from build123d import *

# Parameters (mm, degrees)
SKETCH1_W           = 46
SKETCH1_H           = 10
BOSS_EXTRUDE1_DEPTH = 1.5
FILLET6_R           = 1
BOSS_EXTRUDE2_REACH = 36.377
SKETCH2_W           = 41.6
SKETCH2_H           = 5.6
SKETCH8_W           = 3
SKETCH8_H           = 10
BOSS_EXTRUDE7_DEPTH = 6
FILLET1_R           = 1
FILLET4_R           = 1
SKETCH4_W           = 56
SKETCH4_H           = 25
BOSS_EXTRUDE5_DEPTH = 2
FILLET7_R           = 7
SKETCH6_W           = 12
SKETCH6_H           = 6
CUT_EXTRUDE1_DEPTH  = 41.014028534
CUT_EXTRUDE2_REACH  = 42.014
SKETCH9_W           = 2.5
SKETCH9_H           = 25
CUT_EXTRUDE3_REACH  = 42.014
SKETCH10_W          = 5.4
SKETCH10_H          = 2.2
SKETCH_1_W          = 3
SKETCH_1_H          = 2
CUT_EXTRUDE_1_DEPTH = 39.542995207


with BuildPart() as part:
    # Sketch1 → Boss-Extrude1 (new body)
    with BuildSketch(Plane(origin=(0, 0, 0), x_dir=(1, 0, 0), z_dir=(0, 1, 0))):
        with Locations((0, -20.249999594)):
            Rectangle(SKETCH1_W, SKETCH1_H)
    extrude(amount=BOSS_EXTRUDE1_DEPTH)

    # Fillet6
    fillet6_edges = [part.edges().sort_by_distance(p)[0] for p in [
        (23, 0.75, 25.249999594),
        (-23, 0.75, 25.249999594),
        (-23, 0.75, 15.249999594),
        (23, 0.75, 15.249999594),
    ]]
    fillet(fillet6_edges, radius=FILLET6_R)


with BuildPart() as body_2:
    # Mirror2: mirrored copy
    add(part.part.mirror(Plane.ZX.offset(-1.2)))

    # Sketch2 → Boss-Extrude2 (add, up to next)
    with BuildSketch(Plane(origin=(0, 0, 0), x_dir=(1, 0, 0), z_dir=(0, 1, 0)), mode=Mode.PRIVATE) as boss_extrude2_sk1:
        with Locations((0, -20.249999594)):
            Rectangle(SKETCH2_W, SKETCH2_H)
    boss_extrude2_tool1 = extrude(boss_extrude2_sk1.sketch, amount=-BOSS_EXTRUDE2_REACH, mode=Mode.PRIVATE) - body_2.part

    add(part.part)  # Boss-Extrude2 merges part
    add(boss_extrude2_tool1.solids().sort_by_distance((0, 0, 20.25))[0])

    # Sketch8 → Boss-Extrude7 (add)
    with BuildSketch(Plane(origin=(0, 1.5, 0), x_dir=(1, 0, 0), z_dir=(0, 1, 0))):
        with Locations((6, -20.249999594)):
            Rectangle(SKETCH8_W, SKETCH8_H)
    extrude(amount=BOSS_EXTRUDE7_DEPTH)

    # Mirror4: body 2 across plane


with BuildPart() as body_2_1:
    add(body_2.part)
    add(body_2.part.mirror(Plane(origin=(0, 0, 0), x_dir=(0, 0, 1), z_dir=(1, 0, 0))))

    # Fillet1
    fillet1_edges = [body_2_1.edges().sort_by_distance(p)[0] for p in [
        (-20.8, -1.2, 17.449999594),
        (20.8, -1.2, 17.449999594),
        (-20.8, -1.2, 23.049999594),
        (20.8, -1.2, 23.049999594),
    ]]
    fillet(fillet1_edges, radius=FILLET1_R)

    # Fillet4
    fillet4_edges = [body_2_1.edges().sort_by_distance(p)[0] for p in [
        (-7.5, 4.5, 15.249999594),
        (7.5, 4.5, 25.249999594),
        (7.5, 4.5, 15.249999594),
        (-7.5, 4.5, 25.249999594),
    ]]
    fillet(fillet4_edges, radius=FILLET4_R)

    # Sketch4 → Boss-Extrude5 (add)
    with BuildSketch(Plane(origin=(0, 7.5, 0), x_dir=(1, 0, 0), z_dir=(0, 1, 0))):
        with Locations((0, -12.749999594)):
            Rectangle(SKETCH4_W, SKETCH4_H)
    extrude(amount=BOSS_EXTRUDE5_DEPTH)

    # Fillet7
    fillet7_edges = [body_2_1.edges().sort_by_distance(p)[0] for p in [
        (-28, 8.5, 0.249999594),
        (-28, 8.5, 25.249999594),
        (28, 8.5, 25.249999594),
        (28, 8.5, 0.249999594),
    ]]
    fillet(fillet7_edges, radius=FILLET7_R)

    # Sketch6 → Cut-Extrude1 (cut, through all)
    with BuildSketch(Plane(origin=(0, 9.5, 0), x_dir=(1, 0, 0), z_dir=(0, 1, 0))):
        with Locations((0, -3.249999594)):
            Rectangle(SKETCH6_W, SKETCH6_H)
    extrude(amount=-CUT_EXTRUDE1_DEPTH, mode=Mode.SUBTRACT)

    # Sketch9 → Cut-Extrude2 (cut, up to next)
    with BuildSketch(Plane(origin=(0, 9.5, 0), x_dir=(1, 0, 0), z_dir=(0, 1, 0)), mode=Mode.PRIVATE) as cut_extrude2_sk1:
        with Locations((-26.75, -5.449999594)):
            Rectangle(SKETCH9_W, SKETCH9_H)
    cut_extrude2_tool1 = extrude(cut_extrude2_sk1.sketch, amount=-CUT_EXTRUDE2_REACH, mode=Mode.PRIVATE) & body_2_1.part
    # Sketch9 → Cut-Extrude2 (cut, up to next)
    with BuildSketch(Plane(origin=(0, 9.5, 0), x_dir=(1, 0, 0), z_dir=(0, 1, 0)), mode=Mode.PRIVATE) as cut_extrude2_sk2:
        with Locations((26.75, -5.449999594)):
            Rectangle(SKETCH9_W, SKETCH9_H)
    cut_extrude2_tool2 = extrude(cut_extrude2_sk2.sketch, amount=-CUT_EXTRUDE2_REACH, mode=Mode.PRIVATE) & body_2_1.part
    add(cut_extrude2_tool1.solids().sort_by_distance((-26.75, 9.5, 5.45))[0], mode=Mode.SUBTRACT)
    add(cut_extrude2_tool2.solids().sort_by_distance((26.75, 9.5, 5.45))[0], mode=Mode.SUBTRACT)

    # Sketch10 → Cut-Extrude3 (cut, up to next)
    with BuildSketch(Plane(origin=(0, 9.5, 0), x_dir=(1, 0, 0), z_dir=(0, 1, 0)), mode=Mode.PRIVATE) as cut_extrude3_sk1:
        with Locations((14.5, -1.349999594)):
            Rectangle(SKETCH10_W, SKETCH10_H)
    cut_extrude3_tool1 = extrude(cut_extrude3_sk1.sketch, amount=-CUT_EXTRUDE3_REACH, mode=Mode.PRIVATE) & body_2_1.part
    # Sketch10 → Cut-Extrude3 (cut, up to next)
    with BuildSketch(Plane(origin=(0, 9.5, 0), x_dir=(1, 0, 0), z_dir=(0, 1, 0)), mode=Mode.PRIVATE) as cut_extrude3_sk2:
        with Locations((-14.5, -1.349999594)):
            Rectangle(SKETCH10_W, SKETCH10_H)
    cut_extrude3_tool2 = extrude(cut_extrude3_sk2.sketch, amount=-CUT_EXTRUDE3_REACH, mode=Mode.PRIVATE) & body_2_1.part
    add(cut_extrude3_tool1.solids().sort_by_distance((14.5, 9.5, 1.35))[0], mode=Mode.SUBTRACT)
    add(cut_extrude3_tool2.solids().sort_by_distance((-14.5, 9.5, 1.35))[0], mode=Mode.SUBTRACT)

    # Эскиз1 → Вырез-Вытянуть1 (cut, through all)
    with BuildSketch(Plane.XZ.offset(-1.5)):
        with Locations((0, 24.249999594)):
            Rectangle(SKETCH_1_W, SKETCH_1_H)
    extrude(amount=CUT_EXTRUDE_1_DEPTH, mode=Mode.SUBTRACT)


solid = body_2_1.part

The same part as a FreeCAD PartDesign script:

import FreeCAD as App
import Part
import Sketcher
Q = App.Units.Quantity


def edges_at(feature, points):
    """Names of the edges that pass closest to the given points."""
    edges = feature.Shape.Edges
    near = lambda p: min(range(len(edges)), key=lambda i: edges[i].distToShape(Part.Vertex(*p))[0])
    return sorted({f"Edge{near(p) + 1}" for p in points})

doc = App.newDocument("Part")
params = doc.addObject("Spreadsheet::Sheet", "Params")
for row, (alias, value) in enumerate([
    ("sketch1_width", "46 mm"),
    ("sketch1_height", "10 mm"),
    ("pad1_length", "1.5 mm"),
    ("fillet_radius", "1 mm"),
    ("sketch2_width", "41.6 mm"),
    ("sketch2_height", "5.6 mm"),
    ("sketch3_width", "3 mm"),
    ("sketch3_height", "10 mm"),
    ("pad3_length", "6 mm"),
    ("fillet2_radius", "1 mm"),
    ("fillet3_radius", "1 mm"),
    ("sketch4_width", "56 mm"),
    ("sketch4_height", "25 mm"),
    ("pad4_length", "2 mm"),
    ("fillet4_radius", "7 mm"),
    ("sketch5_width", "12 mm"),
    ("sketch5_height", "6 mm"),
    ("sketch6_height", "25 mm"),
    ("sketch6_width", "2.5 mm"),
    ("sketch7_height", "25 mm"),
    ("sketch7_width", "2.5 mm"),
    ("sketch8_width", "5.4 mm"),
    ("sketch8_height", "2.2 mm"),
    ("sketch9_width", "5.4 mm"),
    ("sketch9_height", "2.2 mm"),
    ("sketch10_width", "3 mm"),
    ("sketch10_height", "2 mm"),
], start=1):
    params.set(f"A{row}", alias)
    params.set(f"B{row}", "=" + value)
    params.setAlias(f"B{row}", alias)

body = doc.addObject("PartDesign::Body", "Body")

sketch1 = doc.addObject("Sketcher::SketchObject", "Sketch")
body.addObject(sketch1)
sketch1.AttachmentSupport = (doc.XZ_Plane, [""])
sketch1.MapMode = "FlatFace"
sketch1.addGeometry([
    Part.LineSegment(App.Vector(-23, 15, 0), App.Vector(-23, 25, 0)),
    Part.LineSegment(App.Vector(-23, 25, 0), App.Vector(23, 25, 0)),
    Part.LineSegment(App.Vector(23, 25, 0), App.Vector(23, 15, 0)),
    Part.LineSegment(App.Vector(23, 15, 0), App.Vector(-23, 15, 0)),
], False)
sketch1.addConstraint([
    Sketcher.Constraint("Coincident", 0, 2, 1, 1),
    Sketcher.Constraint("Coincident", 1, 2, 2, 1),
    Sketcher.Constraint("Coincident", 2, 2, 3, 1),
    Sketcher.Constraint("Coincident", 3, 2, 0, 1),
    Sketcher.Constraint("Vertical", 0),
    Sketcher.Constraint("Horizontal", 1),
    Sketcher.Constraint("Vertical", 2),
    Sketcher.Constraint("Horizontal", 3),
    Sketcher.Constraint("DistanceX", 1, 1, 1, 2, Q("46 mm")),
    Sketcher.Constraint("DistanceY", 0, 1, 0, 2, Q("10 mm")),
    Sketcher.Constraint("DistanceX", 0, 2, -1, 1, Q("23 mm")),
    Sketcher.Constraint("DistanceY", -1, 1, 0, 2, Q("25.25 mm")),
])
sketch1.setExpression("Constraints[8]", "Params.sketch1_width")
sketch1.setExpression("Constraints[9]", "Params.sketch1_height")
pad1 = doc.addObject("PartDesign::Pad", "Pad")
body.addObject(pad1)
pad1.Profile = sketch1
pad1.setExpression("Length", "Params.pad1_length")
pad1.Reversed = True
doc.recompute()

fillet = doc.addObject("PartDesign::Fillet", "Fillet")
body.addObject(fillet)
fillet.Base = (pad1, edges_at(pad1, [
    (23, 0.75, 25.25),
    (-23, 0.75, 25.25),
    (-23, 0.75, 15.25),
    (23, 0.75, 15.25),
]))
fillet.setExpression("Radius", "Params.fillet_radius")
body2 = doc.addObject("PartDesign::Body", "Body001")
body2.AllowCompound = True
doc.recompute()

mirroring = doc.addObject("Part::Mirroring", "Mirroring")
mirroring.Source = body
mirroring.Base = App.Vector(0, -1.2, 0)
mirroring.Normal = App.Vector(0, 1, 0)
body2.BaseFeature = mirroring
doc.recompute()

boolean = doc.addObject("PartDesign::Boolean", "Boolean")
body2.addObject(boolean)
boolean.Type = "Fuse"
boolean.addObjects([body])

sketch2 = doc.addObject("Sketcher::SketchObject", "Sketch001")
body2.addObject(sketch2)
sketch2.AttachmentSupport = (doc.getObject("XZ_Plane001"), [""])
sketch2.MapMode = "FlatFace"
sketch2.addGeometry([
    Part.LineSegment(App.Vector(-21, 17, 0), App.Vector(-21, 23, 0)),
    Part.LineSegment(App.Vector(-21, 23, 0), App.Vector(21, 23, 0)),
    Part.LineSegment(App.Vector(21, 23, 0), App.Vector(21, 17, 0)),
    Part.LineSegment(App.Vector(21, 17, 0), App.Vector(-21, 17, 0)),
], False)
sketch2.addConstraint([
    Sketcher.Constraint("Coincident", 0, 2, 1, 1),
    Sketcher.Constraint("Coincident", 1, 2, 2, 1),
    Sketcher.Constraint("Coincident", 2, 2, 3, 1),
    Sketcher.Constraint("Coincident", 3, 2, 0, 1),
    Sketcher.Constraint("Vertical", 0),
    Sketcher.Constraint("Horizontal", 1),
    Sketcher.Constraint("Vertical", 2),
    Sketcher.Constraint("Horizontal", 3),
    Sketcher.Constraint("DistanceX", 1, 1, 1, 2, Q("41.6 mm")),
    Sketcher.Constraint("DistanceY", 0, 1, 0, 2, Q("5.6 mm")),
    Sketcher.Constraint("DistanceX", 0, 2, -1, 1, Q("20.8 mm")),
    Sketcher.Constraint("DistanceY", -1, 1, 0, 2, Q("23.05 mm")),
])
sketch2.setExpression("Constraints[8]", "Params.sketch2_width")
sketch2.setExpression("Constraints[9]", "Params.sketch2_height")
pad2 = doc.addObject("PartDesign::Pad", "Pad001")
body2.addObject(pad2)
pad2.Profile = sketch2
pad2.Type = "UpToFirst"

sketch3 = doc.addObject("Sketcher::SketchObject", "Sketch002")
body2.addObject(sketch3)
sketch3.AttachmentSupport = (doc.getObject("XZ_Plane001"), [""])
sketch3.MapMode = "FlatFace"
sketch3.AttachmentOffset = App.Placement(App.Vector(0, 0, -1.5), App.Rotation())
sketch3.addGeometry([
    Part.LineSegment(App.Vector(4.5, 15.2, 0), App.Vector(4.5, 25.2, 0)),
    Part.LineSegment(App.Vector(4.5, 25.2, 0), App.Vector(7.5, 25.2, 0)),
    Part.LineSegment(App.Vector(7.5, 25.2, 0), App.Vector(7.5, 15.2, 0)),
    Part.LineSegment(App.Vector(7.5, 15.2, 0), App.Vector(4.5, 15.2, 0)),
], False)
sketch3.addConstraint([
    Sketcher.Constraint("Coincident", 0, 2, 1, 1),
    Sketcher.Constraint("Coincident", 1, 2, 2, 1),
    Sketcher.Constraint("Coincident", 2, 2, 3, 1),
    Sketcher.Constraint("Coincident", 3, 2, 0, 1),
    Sketcher.Constraint("Vertical", 0),
    Sketcher.Constraint("Horizontal", 1),
    Sketcher.Constraint("Vertical", 2),
    Sketcher.Constraint("Horizontal", 3),
    Sketcher.Constraint("DistanceX", 1, 1, 1, 2, Q("3 mm")),
    Sketcher.Constraint("DistanceY", 0, 1, 0, 2, Q("10 mm")),
    Sketcher.Constraint("DistanceX", -1, 1, 0, 2, Q("4.5 mm")),
    Sketcher.Constraint("DistanceY", -1, 1, 0, 2, Q("25.25 mm")),
])
sketch3.setExpression("Constraints[8]", "Params.sketch3_width")
sketch3.setExpression("Constraints[9]", "Params.sketch3_height")
pad3 = doc.addObject("PartDesign::Pad", "Pad002")
body2.addObject(pad3)
pad3.Profile = sketch3
pad3.setExpression("Length", "Params.pad3_length")
pad3.Reversed = True
body3 = doc.addObject("PartDesign::Body", "Body002")
doc.recompute()

body3.BaseFeature = body2
doc.recompute()

mirroring2 = doc.addObject("Part::Mirroring", "Mirroring001")
mirroring2.Source = body2
mirroring2.Base = App.Vector(0, 0, 0)
mirroring2.Normal = App.Vector(1, 0, 0)
body4 = doc.addObject("PartDesign::Body", "Body003")
body4.BaseFeature = mirroring2
boolean2 = doc.addObject("PartDesign::Boolean", "Boolean001")
body3.addObject(boolean2)
boolean2.Type = "Fuse"
boolean2.addObjects([body4])
doc.recompute()

fillet2 = doc.addObject("PartDesign::Fillet", "Fillet001")
body3.addObject(fillet2)
fillet2.Base = (boolean2, edges_at(boolean2, [
    (-20.8, -1.2, 17.45),
    (20.8, -1.2, 17.45),
    (-20.8, -1.2, 23.05),
    (20.8, -1.2, 23.05),
]))
fillet2.setExpression("Radius", "Params.fillet2_radius")
doc.recompute()

fillet3 = doc.addObject("PartDesign::Fillet", "Fillet002")
body3.addObject(fillet3)
fillet3.Base = (fillet2, edges_at(fillet2, [
    (-7.5, 4.5, 15.25),
    (7.5, 4.5, 25.25),
    (7.5, 4.5, 15.25),
    (-7.5, 4.5, 25.25),
]))
fillet3.setExpression("Radius", "Params.fillet3_radius")

sketch4 = doc.addObject("Sketcher::SketchObject", "Sketch003")
body3.addObject(sketch4)
sketch4.AttachmentSupport = (doc.getObject("XZ_Plane002"), [""])
sketch4.MapMode = "FlatFace"
sketch4.AttachmentOffset = App.Placement(App.Vector(0, 0, -7.5), App.Rotation())
sketch4.addGeometry([
    Part.LineSegment(App.Vector(-28, 0, 0), App.Vector(-28, 25, 0)),
    Part.LineSegment(App.Vector(-28, 25, 0), App.Vector(28, 25, 0)),
    Part.LineSegment(App.Vector(28, 25, 0), App.Vector(28, 0, 0)),
    Part.LineSegment(App.Vector(28, 0, 0), App.Vector(-28, 0, 0)),
], False)
sketch4.addConstraint([
    Sketcher.Constraint("Coincident", 0, 2, 1, 1),
    Sketcher.Constraint("Coincident", 1, 2, 2, 1),
    Sketcher.Constraint("Coincident", 2, 2, 3, 1),
    Sketcher.Constraint("Coincident", 3, 2, 0, 1),
    Sketcher.Constraint("Vertical", 0),
    Sketcher.Constraint("Horizontal", 1),
    Sketcher.Constraint("Vertical", 2),
    Sketcher.Constraint("Horizontal", 3),
    Sketcher.Constraint("DistanceX", 1, 1, 1, 2, Q("56 mm")),
    Sketcher.Constraint("DistanceY", 0, 1, 0, 2, Q("25 mm")),
    Sketcher.Constraint("DistanceX", 0, 2, -1, 1, Q("28 mm")),
    Sketcher.Constraint("DistanceY", -1, 1, 0, 2, Q("25.25 mm")),
])
sketch4.setExpression("Constraints[8]", "Params.sketch4_width")
sketch4.setExpression("Constraints[9]", "Params.sketch4_height")
pad4 = doc.addObject("PartDesign::Pad", "Pad003")
body3.addObject(pad4)
pad4.Profile = sketch4
pad4.setExpression("Length", "Params.pad4_length")
pad4.Reversed = True
doc.recompute()

fillet4 = doc.addObject("PartDesign::Fillet", "Fillet003")
body3.addObject(fillet4)
fillet4.Base = (pad4, edges_at(pad4, [
    (-28, 8.5, 0.25),
    (-28, 8.5, 25.25),
    (28, 8.5, 25.25),
    (28, 8.5, 0.25),
]))
fillet4.setExpression("Radius", "Params.fillet4_radius")

sketch5 = doc.addObject("Sketcher::SketchObject", "Sketch004")
body3.addObject(sketch5)
sketch5.AttachmentSupport = (doc.getObject("XZ_Plane002"), [""])
sketch5.MapMode = "FlatFace"
sketch5.AttachmentOffset = App.Placement(App.Vector(0, 0, -9.5), App.Rotation())
sketch5.addGeometry([
    Part.LineSegment(App.Vector(-6, 0, 0), App.Vector(-6, 6, 0)),
    Part.LineSegment(App.Vector(-6, 6, 0), App.Vector(6, 6, 0)),
    Part.LineSegment(App.Vector(6, 6, 0), App.Vector(6, 0, 0)),
    Part.LineSegment(App.Vector(6, 0, 0), App.Vector(-6, 0, 0)),
], False)
sketch5.addConstraint([
    Sketcher.Constraint("Coincident", 0, 2, 1, 1),
    Sketcher.Constraint("Coincident", 1, 2, 2, 1),
    Sketcher.Constraint("Coincident", 2, 2, 3, 1),
    Sketcher.Constraint("Coincident", 3, 2, 0, 1),
    Sketcher.Constraint("Vertical", 0),
    Sketcher.Constraint("Horizontal", 1),
    Sketcher.Constraint("Vertical", 2),
    Sketcher.Constraint("Horizontal", 3),
    Sketcher.Constraint("DistanceX", 1, 1, 1, 2, Q("12 mm")),
    Sketcher.Constraint("DistanceY", 0, 1, 0, 2, Q("6 mm")),
    Sketcher.Constraint("DistanceX", 0, 2, -1, 1, Q("6 mm")),
    Sketcher.Constraint("DistanceY", -1, 1, 0, 2, Q("6.25 mm")),
])
sketch5.setExpression("Constraints[8]", "Params.sketch5_width")
sketch5.setExpression("Constraints[9]", "Params.sketch5_height")
pocket1 = doc.addObject("PartDesign::Pocket", "Pocket")
body3.addObject(pocket1)
pocket1.Profile = sketch5
pocket1.Type = "ThroughAll"
pocket1.Reversed = True

sketch6 = doc.addObject("Sketcher::SketchObject", "Sketch005")
body3.addObject(sketch6)
sketch6.AttachmentSupport = (doc.getObject("XZ_Plane002"), [""])
sketch6.MapMode = "FlatFace"
sketch6.AttachmentOffset = App.Placement(App.Vector(0, 0, -9.5), App.Rotation())
sketch6.addGeometry([
    Part.LineSegment(App.Vector(-28, -7.1, 0), App.Vector(-28, 17.9, 0)),
    Part.LineSegment(App.Vector(-28, 17.9, 0), App.Vector(-25.5, 17.9, 0)),
    Part.LineSegment(App.Vector(-25.5, 17.9, 0), App.Vector(-25.5, -7.1, 0)),
    Part.LineSegment(App.Vector(-25.5, -7.1, 0), App.Vector(-28, -7.1, 0)),
], False)
sketch6.addConstraint([
    Sketcher.Constraint("Coincident", 0, 2, 1, 1),
    Sketcher.Constraint("Coincident", 1, 2, 2, 1),
    Sketcher.Constraint("Coincident", 2, 2, 3, 1),
    Sketcher.Constraint("Coincident", 3, 2, 0, 1),
    Sketcher.Constraint("Vertical", 0),
    Sketcher.Constraint("Horizontal", 1),
    Sketcher.Constraint("Vertical", 2),
    Sketcher.Constraint("Horizontal", 3),
    Sketcher.Constraint("DistanceY", 0, 1, 0, 2, Q("25 mm")),
    Sketcher.Constraint("DistanceX", 1, 1, 1, 2, Q("2.5 mm")),
    Sketcher.Constraint("DistanceX", 0, 2, -1, 1, Q("28 mm")),
    Sketcher.Constraint("DistanceY", -1, 1, 0, 2, Q("17.95 mm")),
])
sketch6.setExpression("Constraints[8]", "Params.sketch6_height")
sketch6.setExpression("Constraints[9]", "Params.sketch6_width")
pocket2 = doc.addObject("PartDesign::Pocket", "Pocket001")
body3.addObject(pocket2)
pocket2.Profile = sketch6
pocket2.Type = "UpToFirst"
pocket2.Reversed = True

sketch7 = doc.addObject("Sketcher::SketchObject", "Sketch006")
body3.addObject(sketch7)
sketch7.AttachmentSupport = (doc.getObject("XZ_Plane002"), [""])
sketch7.MapMode = "FlatFace"
sketch7.AttachmentOffset = App.Placement(App.Vector(0, 0, -9.5), App.Rotation())
sketch7.addGeometry([
    Part.LineSegment(App.Vector(25.5, -7.1, 0), App.Vector(25.5, 17.9, 0)),
    Part.LineSegment(App.Vector(25.5, 17.9, 0), App.Vector(28, 17.9, 0)),
    Part.LineSegment(App.Vector(28, 17.9, 0), App.Vector(28, -7.1, 0)),
    Part.LineSegment(App.Vector(28, -7.1, 0), App.Vector(25.5, -7.1, 0)),
], False)
sketch7.addConstraint([
    Sketcher.Constraint("Coincident", 0, 2, 1, 1),
    Sketcher.Constraint("Coincident", 1, 2, 2, 1),
    Sketcher.Constraint("Coincident", 2, 2, 3, 1),
    Sketcher.Constraint("Coincident", 3, 2, 0, 1),
    Sketcher.Constraint("Vertical", 0),
    Sketcher.Constraint("Horizontal", 1),
    Sketcher.Constraint("Vertical", 2),
    Sketcher.Constraint("Horizontal", 3),
    Sketcher.Constraint("DistanceY", 0, 1, 0, 2, Q("25 mm")),
    Sketcher.Constraint("DistanceX", 1, 1, 1, 2, Q("2.5 mm")),
    Sketcher.Constraint("DistanceX", -1, 1, 1, 2, Q("28 mm")),
    Sketcher.Constraint("DistanceY", -1, 1, 0, 2, Q("17.95 mm")),
])
sketch7.setExpression("Constraints[8]", "Params.sketch7_height")
sketch7.setExpression("Constraints[9]", "Params.sketch7_width")
pocket3 = doc.addObject("PartDesign::Pocket", "Pocket002")
body3.addObject(pocket3)
pocket3.Profile = sketch7
pocket3.Type = "UpToFirst"
pocket3.Reversed = True

sketch8 = doc.addObject("Sketcher::SketchObject", "Sketch007")
body3.addObject(sketch8)
sketch8.AttachmentSupport = (doc.getObject("XZ_Plane002"), [""])
sketch8.MapMode = "FlatFace"
sketch8.AttachmentOffset = App.Placement(App.Vector(0, 0, -9.5), App.Rotation())
sketch8.addGeometry([
    Part.LineSegment(App.Vector(11.8, 0.2, 0), App.Vector(11.8, 2.4, 0)),
    Part.LineSegment(App.Vector(11.8, 2.4, 0), App.Vector(17.2, 2.4, 0)),
    Part.LineSegment(App.Vector(17.2, 2.4, 0), App.Vector(17.2, 0.2, 0)),
    Part.LineSegment(App.Vector(17.2, 0.2, 0), App.Vector(11.8, 0.2, 0)),
], False)
sketch8.addConstraint([
    Sketcher.Constraint("Coincident", 0, 2, 1, 1),
    Sketcher.Constraint("Coincident", 1, 2, 2, 1),
    Sketcher.Constraint("Coincident", 2, 2, 3, 1),
    Sketcher.Constraint("Coincident", 3, 2, 0, 1),
    Sketcher.Constraint("Vertical", 0),
    Sketcher.Constraint("Horizontal", 1),
    Sketcher.Constraint("Vertical", 2),
    Sketcher.Constraint("Horizontal", 3),
    Sketcher.Constraint("DistanceX", 1, 1, 1, 2, Q("5.4 mm")),
    Sketcher.Constraint("DistanceY", 0, 1, 0, 2, Q("2.2 mm")),
    Sketcher.Constraint("DistanceX", -1, 1, 0, 2, Q("11.8 mm")),
    Sketcher.Constraint("DistanceY", -1, 1, 0, 2, Q("2.45 mm")),
])
sketch8.setExpression("Constraints[8]", "Params.sketch8_width")
sketch8.setExpression("Constraints[9]", "Params.sketch8_height")
pocket4 = doc.addObject("PartDesign::Pocket", "Pocket003")
body3.addObject(pocket4)
pocket4.Profile = sketch8
pocket4.Type = "UpToFirst"
pocket4.Reversed = True

sketch9 = doc.addObject("Sketcher::SketchObject", "Sketch008")
body3.addObject(sketch9)
sketch9.AttachmentSupport = (doc.getObject("XZ_Plane002"), [""])
sketch9.MapMode = "FlatFace"
sketch9.AttachmentOffset = App.Placement(App.Vector(0, 0, -9.5), App.Rotation())
sketch9.addGeometry([
    Part.LineSegment(App.Vector(-17.2, 0.2, 0), App.Vector(-17.2, 2.4, 0)),
    Part.LineSegment(App.Vector(-17.2, 2.4, 0), App.Vector(-11.8, 2.4, 0)),
    Part.LineSegment(App.Vector(-11.8, 2.4, 0), App.Vector(-11.8, 0.2, 0)),
    Part.LineSegment(App.Vector(-11.8, 0.2, 0), App.Vector(-17.2, 0.2, 0)),
], False)
sketch9.addConstraint([
    Sketcher.Constraint("Coincident", 0, 2, 1, 1),
    Sketcher.Constraint("Coincident", 1, 2, 2, 1),
    Sketcher.Constraint("Coincident", 2, 2, 3, 1),
    Sketcher.Constraint("Coincident", 3, 2, 0, 1),
    Sketcher.Constraint("Vertical", 0),
    Sketcher.Constraint("Horizontal", 1),
    Sketcher.Constraint("Vertical", 2),
    Sketcher.Constraint("Horizontal", 3),
    Sketcher.Constraint("DistanceX", 1, 1, 1, 2, Q("5.4 mm")),
    Sketcher.Constraint("DistanceY", 0, 1, 0, 2, Q("2.2 mm")),
    Sketcher.Constraint("DistanceX", 0, 2, -1, 1, Q("17.2 mm")),
    Sketcher.Constraint("DistanceY", -1, 1, 0, 2, Q("2.45 mm")),
])
sketch9.setExpression("Constraints[8]", "Params.sketch9_width")
sketch9.setExpression("Constraints[9]", "Params.sketch9_height")
pocket5 = doc.addObject("PartDesign::Pocket", "Pocket004")
body3.addObject(pocket5)
pocket5.Profile = sketch9
pocket5.Type = "UpToFirst"
pocket5.Reversed = True

sketch10 = doc.addObject("Sketcher::SketchObject", "Sketch009")
body3.addObject(sketch10)
sketch10.AttachmentSupport = (doc.getObject("XZ_Plane002"), [""])
sketch10.MapMode = "FlatFace"
sketch10.AttachmentOffset = App.Placement(App.Vector(0, 0, -1.5), App.Rotation())
sketch10.addGeometry([
    Part.LineSegment(App.Vector(-1.5, 25.2, 0), App.Vector(-1.5, 23.2, 0)),
    Part.LineSegment(App.Vector(-1.5, 23.2, 0), App.Vector(1.5, 23.2, 0)),
    Part.LineSegment(App.Vector(1.5, 23.2, 0), App.Vector(1.5, 25.2, 0)),
    Part.LineSegment(App.Vector(1.5, 25.2, 0), App.Vector(-1.5, 25.2, 0)),
], False)
sketch10.addConstraint([
    Sketcher.Constraint("Coincident", 0, 2, 1, 1),
    Sketcher.Constraint("Coincident", 1, 2, 2, 1),
    Sketcher.Constraint("Coincident", 2, 2, 3, 1),
    Sketcher.Constraint("Coincident", 3, 2, 0, 1),
    Sketcher.Constraint("Vertical", 0),
    Sketcher.Constraint("Horizontal", 1),
    Sketcher.Constraint("Vertical", 2),
    Sketcher.Constraint("Horizontal", 3),
    Sketcher.Constraint("DistanceX", 1, 1, 1, 2, Q("3 mm")),
    Sketcher.Constraint("DistanceY", 0, 2, 0, 1, Q("2 mm")),
    Sketcher.Constraint("DistanceX", 0, 2, -1, 1, Q("1.5 mm")),
    Sketcher.Constraint("DistanceY", -1, 1, 0, 2, Q("23.25 mm")),
])
sketch10.setExpression("Constraints[8]", "Params.sketch10_width")
sketch10.setExpression("Constraints[9]", "Params.sketch10_height")
pocket6 = doc.addObject("PartDesign::Pocket", "Pocket005")
body3.addObject(pocket6)
pocket6.Profile = sketch10
pocket6.Type = "ThroughAll"
pocket6.Reversed = True
mirroring.Visibility = False
mirroring2.Visibility = False

doc.recompute()
